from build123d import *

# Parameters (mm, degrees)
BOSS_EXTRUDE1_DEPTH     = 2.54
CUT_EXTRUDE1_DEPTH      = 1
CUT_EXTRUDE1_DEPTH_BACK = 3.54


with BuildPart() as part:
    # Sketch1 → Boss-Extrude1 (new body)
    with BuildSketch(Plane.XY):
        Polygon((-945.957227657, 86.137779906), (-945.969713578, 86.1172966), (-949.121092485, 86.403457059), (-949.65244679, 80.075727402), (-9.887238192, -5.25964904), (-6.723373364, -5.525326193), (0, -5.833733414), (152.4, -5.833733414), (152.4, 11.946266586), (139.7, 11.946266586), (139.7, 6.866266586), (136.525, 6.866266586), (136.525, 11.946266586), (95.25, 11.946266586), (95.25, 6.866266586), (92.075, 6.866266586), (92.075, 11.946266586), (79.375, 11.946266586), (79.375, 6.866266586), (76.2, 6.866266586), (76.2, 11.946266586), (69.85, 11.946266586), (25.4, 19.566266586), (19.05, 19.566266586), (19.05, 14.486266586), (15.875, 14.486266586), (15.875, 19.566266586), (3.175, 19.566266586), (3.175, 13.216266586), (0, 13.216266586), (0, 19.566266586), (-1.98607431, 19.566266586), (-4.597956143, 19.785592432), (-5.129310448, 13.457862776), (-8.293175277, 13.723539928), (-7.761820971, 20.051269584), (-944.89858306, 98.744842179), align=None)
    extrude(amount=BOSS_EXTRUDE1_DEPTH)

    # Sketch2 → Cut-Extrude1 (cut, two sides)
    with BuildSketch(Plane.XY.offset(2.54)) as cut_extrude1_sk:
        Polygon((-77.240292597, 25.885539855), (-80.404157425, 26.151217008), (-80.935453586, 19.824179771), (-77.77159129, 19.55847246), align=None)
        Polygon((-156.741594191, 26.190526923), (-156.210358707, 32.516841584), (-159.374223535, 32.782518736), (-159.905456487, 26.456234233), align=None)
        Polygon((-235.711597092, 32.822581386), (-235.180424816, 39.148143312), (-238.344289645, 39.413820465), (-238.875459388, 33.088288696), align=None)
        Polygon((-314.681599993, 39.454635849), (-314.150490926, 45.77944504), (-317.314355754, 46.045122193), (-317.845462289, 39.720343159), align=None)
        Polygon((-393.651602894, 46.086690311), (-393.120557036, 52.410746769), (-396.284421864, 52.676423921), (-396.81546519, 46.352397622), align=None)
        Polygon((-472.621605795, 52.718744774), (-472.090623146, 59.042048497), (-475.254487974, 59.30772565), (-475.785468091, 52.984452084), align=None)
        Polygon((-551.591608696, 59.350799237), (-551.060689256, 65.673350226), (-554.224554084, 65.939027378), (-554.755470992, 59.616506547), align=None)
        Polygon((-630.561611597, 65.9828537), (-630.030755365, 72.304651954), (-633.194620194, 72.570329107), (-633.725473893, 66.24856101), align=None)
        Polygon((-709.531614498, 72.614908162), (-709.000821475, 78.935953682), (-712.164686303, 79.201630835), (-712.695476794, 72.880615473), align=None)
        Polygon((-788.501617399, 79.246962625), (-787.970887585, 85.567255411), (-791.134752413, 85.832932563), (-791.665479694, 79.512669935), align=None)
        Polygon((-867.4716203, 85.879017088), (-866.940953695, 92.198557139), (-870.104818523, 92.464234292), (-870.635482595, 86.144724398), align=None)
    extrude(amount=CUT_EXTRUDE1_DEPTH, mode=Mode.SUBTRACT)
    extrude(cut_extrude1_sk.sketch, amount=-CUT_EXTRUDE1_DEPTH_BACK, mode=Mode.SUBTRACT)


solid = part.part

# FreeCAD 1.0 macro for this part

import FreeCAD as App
import Part
import Sketcher
from FreeCAD import Vector
Q = App.Units.Quantity


def add_polygon(sketch, points):
    """Adds a closed chain of lines whose ends are joined by coincident constraints."""
    first, n = sketch.GeometryCount, len(points)
    for a, b in zip(points, points[1:] + points[:1]):
        sketch.addGeometry(Part.LineSegment(App.Vector(*a, 0), App.Vector(*b, 0)), False)
    for i in range(n):
        sketch.addConstraint(Sketcher.Constraint("Coincident", first + i, 2, first + (i + 1) % n, 1))

doc = App.newDocument("Part")
params = doc.addObject("Spreadsheet::Sheet", "Params")
for row, (alias, value) in enumerate([
    ("sketch1_width", "6 in"),
    ("sketch1_width2", "0.5 in"),
    ("sketch1_height", "0.7 in"),
    ("sketch1_height2", "0.2 in"),
    ("sketch1_width3", "0.25 in"),
    ("pad1_length", "0.1 in"),
    ("sketch2_length", "0.125 in"),
], start=1):
    params.set(f"A{row}", alias)
    params.set(f"B{row}", "=" + value)
    params.setAlias(f"B{row}", alias)

body = doc.addObject("PartDesign::Body", "Body")

# Sketch on XY plane
sketch1 = doc.addObject("Sketcher::SketchObject", "Sketch")
body.addObject(sketch1)
sketch1.AttachmentSupport = (doc.XY_Plane, [""])
sketch1.MapMode = "FlatFace"
add_polygon(sketch1, [(-945.957, 86.138), (-945.97, 86.117), (-949.121, 86.403), (-949.652, 80.076), (-9.887, -5.26), (-6.723, -5.525), (0, -5.834), (152.4, -5.834), (152.4, 11.946), (139.7, 11.946), (139.7, 6.866), (136.525, 6.866), (136.525, 11.946), (95.25, 11.946), (95.25, 6.866), (92.075, 6.866), (92.075, 11.946), (79.375, 11.946), (79.375, 6.866), (76.2, 6.866), (76.2, 11.946), (69.85, 11.946), (25.4, 19.566), (19.05, 19.566), (19.05, 14.486), (15.875, 14.486), (15.875, 19.566), (3.175, 19.566), (3.175, 13.216), (0, 13.216), (0, 19.566), (-1.986, 19.566), (-4.598, 19.786), (-5.129, 13.458), (-8.293, 13.724), (-7.762, 20.051), (-944.899, 98.745)])  # lines 0-36
sketch1.addConstraint([
    Sketcher.Constraint("Horizontal", 6),
    Sketcher.Constraint("Vertical", 7),
    Sketcher.Constraint("Horizontal", 8),
    Sketcher.Constraint("Vertical", 9),
    Sketcher.Constraint("Horizontal", 10),
    Sketcher.Constraint("Vertical", 11),
    Sketcher.Constraint("Horizontal", 12),
    Sketcher.Constraint("Vertical", 13),
    Sketcher.Constraint("Horizontal", 14),
    Sketcher.Constraint("Vertical", 15),
    Sketcher.Constraint("Horizontal", 16),
    Sketcher.Constraint("Vertical", 17),
    Sketcher.Constraint("Horizontal", 18),
    Sketcher.Constraint("Vertical", 19),
    Sketcher.Constraint("Horizontal", 20),
    Sketcher.Constraint("Horizontal", 22),
    Sketcher.Constraint("Vertical", 23),
    Sketcher.Constraint("Horizontal", 24),
    Sketcher.Constraint("Vertical", 25),
    Sketcher.Constraint("Horizontal", 26),
    Sketcher.Constraint("Vertical", 27),
    Sketcher.Constraint("Horizontal", 28),
    Sketcher.Constraint("Vertical", 29),
    Sketcher.Constraint("Horizontal", 30),
    Sketcher.Constraint("PointOnObject", 5, 2, -2),
    Sketcher.Constraint("PointOnObject", 28, 2, -2),
    Sketcher.Constraint("Parallel", 1, 3),
    Sketcher.Constraint("Perpendicular", 2, 4),
    Sketcher.Constraint("Parallel", 4, 31),
    Sketcher.Constraint("Perpendicular", 31, 32),
    Sketcher.Constraint("Perpendicular", 32, 33),
    Sketcher.Constraint("Perpendicular", 33, 34),
    Sketcher.Constraint("Perpendicular", 34, 35),
    Sketcher.Constraint("Perpendicular", 35, 36),
    Sketcher.Constraint("Horizontal", 8, 2, 11, 2),
    Sketcher.Constraint("Horizontal", 10, 2, 13, 2),
    Sketcher.Constraint("Horizontal", 12, 2, 15, 2),
    Sketcher.Constraint("Horizontal", 14, 2, 17, 2),
    Sketcher.Constraint("Horizontal", 16, 2, 19, 2),
    Sketcher.Constraint("Horizontal", 22, 2, 25, 2),
    Sketcher.Constraint("Horizontal", 26, 2, 29, 2),
    Sketcher.Constraint("Equal", 10, 14),
    Sketcher.Constraint("Equal", 8, 16),
    Sketcher.Constraint("Equal", 14, 18),
    Sketcher.Constraint("Equal", 20, 22),
    Sketcher.Constraint("Equal", 18, 24),
    Sketcher.Constraint("Equal", 16, 26),
    Sketcher.Constraint("Equal", 24, 28),
    Sketcher.Constraint("Equal", 19, 23),
    Sketcher.Constraint("Equal", 22, 27),
    Sketcher.Constraint("Equal", 2, 32),
    Sketcher.Constraint("Equal", 4, 33),
    Sketcher.Constraint("Equal", 32, 34),
    Sketcher.Constraint("DistanceX", 6, 1, 6, 2, Q("6 in")),
    Sketcher.Constraint("DistanceX", 8, 2, 8, 1, Q("0.5 in")),
    Sketcher.Constraint("DistanceY", 7, 1, 7, 2, Q("0.7 in")),
    Sketcher.Constraint("DistanceY", 9, 2, 9, 1, Q("0.2 in")),
    Sketcher.Constraint("DistanceX", -1, 1, 18, 2, Q("3 in")),
    Sketcher.Constraint("DistanceX", -1, 1, 21, 2, Q("1 in")),
    Sketcher.Constraint("DistanceY", 5, 2, 21, 2, Q("1 in")),
    Sketcher.Constraint("DistanceX", 20, 2, 20, 1, Q("0.25 in")),
    Sketcher.Constraint("Angle", 2, Q("-94.8 deg")),
    Sketcher.Constraint("Distance", 2, Q("0.25 in")),
    Sketcher.Constraint("Distance", 4, Q("0.125 in")),
    Sketcher.Constraint("Distance", 35, Q("37.025 in")),
    Sketcher.Constraint("DistanceX", 33, 2, 30, 2, Q("6.307101 mm")),
    Sketcher.Constraint("Distance", 0, Q("0.023989 mm")),
    Sketcher.Constraint("DistanceX", 30, 2, 30, 1, Q("1.986074 mm")),
    Sketcher.Constraint("DistanceX", 3, 2, -1, 1, Q("9.887238 mm")),
    Sketcher.Constraint("DistanceY", 3, 2, -1, 1, Q("5.259649 mm")),
    Sketcher.Constraint("DistanceY", -1, 1, 33, 2, Q("13.72354 mm")),
    Sketcher.Constraint("DistanceY", -1, 1, 36, 2, Q("86.13778 mm")),
    Sketcher.Constraint("DistanceX", 1, 2, 0, 2, Q("3.151379 mm")),
    Sketcher.Constraint("DistanceX", 2, 2, 3, 2, Q("939.765209 mm")),
])
sketch1.setExpression("Constraints[90]", "Params.sketch1_width")
sketch1.setExpression("Constraints[91]", "Params.sketch1_width2")
sketch1.setExpression("Constraints[92]", "Params.sketch1_height")
sketch1.setExpression("Constraints[93]", "Params.sketch1_height2")
sketch1.setExpression("Constraints[97]", "Params.sketch1_width3")
pad1 = doc.addObject("PartDesign::Pad", "Pad")
body.addObject(pad1)
pad1.Profile = sketch1
pad1.setExpression("Length", "Params.pad1_length")

# Sketch on XY plane
sketch2 = doc.addObject("Sketcher::SketchObject", "Sketch001")
body.addObject(sketch2)
sketch2.AttachmentSupport = (doc.XY_Plane, [""])
sketch2.MapMode = "FlatFace"
sketch2.AttachmentOffset = App.Placement(Vector(0, 0, 0.1 * 25.4), App.Rotation())
add_polygon(sketch2, [(-77.2, 25.9), (-80.4, 26.2), (-80.9, 19.8), (-77.8, 19.6)])  # lines 0-3
add_polygon(sketch2, [(-156.7, 26.2), (-156.2, 32.5), (-159.4, 32.8), (-159.9, 26.5)])  # lines 4-7
add_polygon(sketch2, [(-235.7, 32.8), (-235.2, 39.1), (-238.3, 39.4), (-238.9, 33.1)])  # lines 8-11
add_polygon(sketch2, [(-314.7, 39.5), (-314.2, 45.8), (-317.3, 46), (-317.8, 39.7)])  # lines 12-15
add_polygon(sketch2, [(-393.7, 46.1), (-393.1, 52.4), (-396.3, 52.7), (-396.8, 46.4)])  # lines 16-19
add_polygon(sketch2, [(-472.6, 52.7), (-472.1, 59), (-475.3, 59.3), (-475.8, 53)])  # lines 20-23
add_polygon(sketch2, [(-551.6, 59.4), (-551.1, 65.7), (-554.2, 65.9), (-554.8, 59.6)])  # lines 24-27
add_polygon(sketch2, [(-630.6, 66), (-630, 72.3), (-633.2, 72.6), (-633.7, 66.2)])  # lines 28-31
add_polygon(sketch2, [(-709.5, 72.6), (-709, 78.9), (-712.2, 79.2), (-712.7, 72.9)])  # lines 32-35
add_polygon(sketch2, [(-788.5, 79.2), (-788, 85.6), (-791.1, 85.8), (-791.7, 79.5)])  # lines 36-39
add_polygon(sketch2, [(-867.5, 85.9), (-866.9, 92.2), (-870.1, 92.5), (-870.6, 86.1)])  # lines 40-43
sketch2.addConstraint([
    Sketcher.Constraint("Perpendicular", 0, 1),
    Sketcher.Constraint("Parallel", 1, 3),
    Sketcher.Constraint("Parallel", 3, 4),
    Sketcher.Constraint("Perpendicular", 4, 5),
    Sketcher.Constraint("Perpendicular", 5, 6),
    Sketcher.Constraint("Parallel", 2, 7),
    Sketcher.Constraint("Parallel", 6, 8),
    Sketcher.Constraint("Perpendicular", 8, 9),
    Sketcher.Constraint("Perpendicular", 9, 10),
    Sketcher.Constraint("Parallel", 7, 11),
    Sketcher.Constraint("Parallel", 10, 12),
    Sketcher.Constraint("Perpendicular", 12, 13),
    Sketcher.Constraint("Perpendicular", 13, 14),
    Sketcher.Constraint("Parallel", 11, 15),
    Sketcher.Constraint("Parallel", 14, 16),
    Sketcher.Constraint("Perpendicular", 16, 17),
    Sketcher.Constraint("Perpendicular", 17, 18),
    Sketcher.Constraint("Parallel", 15, 19),
    Sketcher.Constraint("Parallel", 18, 20),
    Sketcher.Constraint("Perpendicular", 20, 21),
    Sketcher.Constraint("Perpendicular", 21, 22),
    Sketcher.Constraint("Parallel", 19, 23),
    Sketcher.Constraint("Parallel", 22, 24),
    Sketcher.Constraint("Perpendicular", 24, 25),
    Sketcher.Constraint("Perpendicular", 25, 26),
    Sketcher.Constraint("Parallel", 23, 27),
    Sketcher.Constraint("Parallel", 26, 28),
    Sketcher.Constraint("Perpendicular", 28, 29),
    Sketcher.Constraint("Perpendicular", 29, 30),
    Sketcher.Constraint("Parallel", 27, 31),
    Sketcher.Constraint("Parallel", 30, 32),
    Sketcher.Constraint("Perpendicular", 32, 33),
    Sketcher.Constraint("Perpendicular", 33, 34),
    Sketcher.Constraint("Parallel", 31, 35),
    Sketcher.Constraint("Parallel", 34, 36),
    Sketcher.Constraint("Perpendicular", 36, 37),
    Sketcher.Constraint("Perpendicular", 37, 38),
    Sketcher.Constraint("Parallel", 35, 39),
    Sketcher.Constraint("Parallel", 38, 40),
    Sketcher.Constraint("Perpendicular", 40, 41),
    Sketcher.Constraint("Perpendicular", 41, 42),
    Sketcher.Constraint("Parallel", 39, 43),
    Sketcher.Constraint("Equal", 2, 5),
    Sketcher.Constraint("Equal", 7, 9),
    Sketcher.Constraint("Equal", 11, 13),
    Sketcher.Constraint("Equal", 15, 17),
    Sketcher.Constraint("Equal", 19, 21),
    Sketcher.Constraint("Equal", 23, 25),
    Sketcher.Constraint("Equal", 27, 29),
    Sketcher.Constraint("Equal", 31, 33),
    Sketcher.Constraint("Equal", 35, 37),
    Sketcher.Constraint("Equal", 39, 41),
    Sketcher.Constraint("Angle", 0, Q("175.2 deg")),
    Sketcher.Constraint("Distance", 0, Q("0.125 in")),
    Sketcher.Constraint("DistanceY", -1, 1, 13, 2, Q("1.8128001 in")),
    Sketcher.Constraint("DistanceX", 31, 2, 28, 2, Q("0.0208999 in")),
    Sketcher.Constraint("DistanceX", 15, 2, -1, 1, Q("314.6816 mm")),
    Sketcher.Constraint("DistanceY", -1, 1, 27, 2, Q("59.350799 mm")),
    Sketcher.Constraint("DistanceX", 2, 2, 3, 2, Q("0.531299 mm")),
    Sketcher.Constraint("DistanceX", 4, 2, 0, 2, Q("75.806201 mm")),
    Sketcher.Constraint("DistanceY", 3, 2, 4, 2, Q("6.631302 mm")),
    Sketcher.Constraint("DistanceX", 6, 2, 0, 2, Q("79.501299 mm")),
    Sketcher.Constraint("DistanceX", 8, 2, 5, 2, Q("75.806201 mm")),
    Sketcher.Constraint("DistanceY", 4, 2, 8, 2, Q("6.631302 mm")),
    Sketcher.Constraint("DistanceX", 12, 2, 9, 2, Q("75.806201 mm")),
    Sketcher.Constraint("DistanceY", 8, 2, 12, 2, Q("6.631302 mm")),
    Sketcher.Constraint("DistanceY", 14, 2, 12, 2, Q("6.059102 mm")),
    Sketcher.Constraint("DistanceX", 16, 2, 13, 2, Q("75.806201 mm")),
    Sketcher.Constraint("DistanceY", 12, 2, 16, 2, Q("6.631302 mm")),
    Sketcher.Constraint("DistanceX", 20, 2, 17, 2, Q("75.806201 mm")),
    Sketcher.Constraint("DistanceY", 16, 2, 20, 2, Q("6.631302 mm")),
    Sketcher.Constraint("DistanceX", 24, 2, 21, 2, Q("75.806201 mm")),
    Sketcher.Constraint("DistanceY", 22, 2, 24, 2, Q("12.688898 mm")),
    Sketcher.Constraint("DistanceY", 20, 2, 24, 2, Q("6.631302 mm")),
    Sketcher.Constraint("DistanceX", 28, 2, 25, 2, Q("75.806201 mm")),
    Sketcher.Constraint("DistanceY", 24, 2, 28, 2, Q("6.631302 mm")),
    Sketcher.Constraint("DistanceX", 32, 2, 29, 2, Q("75.806201 mm")),
    Sketcher.Constraint("DistanceY", 28, 2, 32, 2, Q("6.631302 mm")),
    Sketcher.Constraint("DistanceX", 36, 2, 33, 2, Q("75.806201 mm")),
    Sketcher.Constraint("DistanceY", 32, 2, 36, 2, Q("6.631302 mm")),
    Sketcher.Constraint("DistanceX", 40, 2, 37, 2, Q("75.806201 mm")),
    Sketcher.Constraint("DistanceY", 36, 2, 40, 2, Q("6.631302 mm")),
    Sketcher.Constraint("DistanceX", 41, 2, 39, 2, Q("81.603201 mm")),
    Sketcher.Constraint("DistanceX", 41, 2, 43, 2, Q("2.633198 mm")),
    Sketcher.Constraint("Distance", 4, Q("6.34858 mm")),
    Sketcher.Constraint("DistanceX", 10, 2, -1, 1, Q("238.875459 mm")),
    Sketcher.Constraint("DistanceY", -1, 1, 19, 2, Q("46.08669 mm")),
    Sketcher.Constraint("DistanceY", -1, 1, 35, 2, Q("72.614908 mm")),
])
sketch2.setExpression("Constraints[97]", "Params.sketch2_length")
pocket1 = doc.addObject("PartDesign::Pocket", "Pocket")
body.addObject(pocket1)
pocket1.Profile = sketch2
pocket1.Type = "ThroughAll"
pocket1.Midplane = True

doc.recompute()
